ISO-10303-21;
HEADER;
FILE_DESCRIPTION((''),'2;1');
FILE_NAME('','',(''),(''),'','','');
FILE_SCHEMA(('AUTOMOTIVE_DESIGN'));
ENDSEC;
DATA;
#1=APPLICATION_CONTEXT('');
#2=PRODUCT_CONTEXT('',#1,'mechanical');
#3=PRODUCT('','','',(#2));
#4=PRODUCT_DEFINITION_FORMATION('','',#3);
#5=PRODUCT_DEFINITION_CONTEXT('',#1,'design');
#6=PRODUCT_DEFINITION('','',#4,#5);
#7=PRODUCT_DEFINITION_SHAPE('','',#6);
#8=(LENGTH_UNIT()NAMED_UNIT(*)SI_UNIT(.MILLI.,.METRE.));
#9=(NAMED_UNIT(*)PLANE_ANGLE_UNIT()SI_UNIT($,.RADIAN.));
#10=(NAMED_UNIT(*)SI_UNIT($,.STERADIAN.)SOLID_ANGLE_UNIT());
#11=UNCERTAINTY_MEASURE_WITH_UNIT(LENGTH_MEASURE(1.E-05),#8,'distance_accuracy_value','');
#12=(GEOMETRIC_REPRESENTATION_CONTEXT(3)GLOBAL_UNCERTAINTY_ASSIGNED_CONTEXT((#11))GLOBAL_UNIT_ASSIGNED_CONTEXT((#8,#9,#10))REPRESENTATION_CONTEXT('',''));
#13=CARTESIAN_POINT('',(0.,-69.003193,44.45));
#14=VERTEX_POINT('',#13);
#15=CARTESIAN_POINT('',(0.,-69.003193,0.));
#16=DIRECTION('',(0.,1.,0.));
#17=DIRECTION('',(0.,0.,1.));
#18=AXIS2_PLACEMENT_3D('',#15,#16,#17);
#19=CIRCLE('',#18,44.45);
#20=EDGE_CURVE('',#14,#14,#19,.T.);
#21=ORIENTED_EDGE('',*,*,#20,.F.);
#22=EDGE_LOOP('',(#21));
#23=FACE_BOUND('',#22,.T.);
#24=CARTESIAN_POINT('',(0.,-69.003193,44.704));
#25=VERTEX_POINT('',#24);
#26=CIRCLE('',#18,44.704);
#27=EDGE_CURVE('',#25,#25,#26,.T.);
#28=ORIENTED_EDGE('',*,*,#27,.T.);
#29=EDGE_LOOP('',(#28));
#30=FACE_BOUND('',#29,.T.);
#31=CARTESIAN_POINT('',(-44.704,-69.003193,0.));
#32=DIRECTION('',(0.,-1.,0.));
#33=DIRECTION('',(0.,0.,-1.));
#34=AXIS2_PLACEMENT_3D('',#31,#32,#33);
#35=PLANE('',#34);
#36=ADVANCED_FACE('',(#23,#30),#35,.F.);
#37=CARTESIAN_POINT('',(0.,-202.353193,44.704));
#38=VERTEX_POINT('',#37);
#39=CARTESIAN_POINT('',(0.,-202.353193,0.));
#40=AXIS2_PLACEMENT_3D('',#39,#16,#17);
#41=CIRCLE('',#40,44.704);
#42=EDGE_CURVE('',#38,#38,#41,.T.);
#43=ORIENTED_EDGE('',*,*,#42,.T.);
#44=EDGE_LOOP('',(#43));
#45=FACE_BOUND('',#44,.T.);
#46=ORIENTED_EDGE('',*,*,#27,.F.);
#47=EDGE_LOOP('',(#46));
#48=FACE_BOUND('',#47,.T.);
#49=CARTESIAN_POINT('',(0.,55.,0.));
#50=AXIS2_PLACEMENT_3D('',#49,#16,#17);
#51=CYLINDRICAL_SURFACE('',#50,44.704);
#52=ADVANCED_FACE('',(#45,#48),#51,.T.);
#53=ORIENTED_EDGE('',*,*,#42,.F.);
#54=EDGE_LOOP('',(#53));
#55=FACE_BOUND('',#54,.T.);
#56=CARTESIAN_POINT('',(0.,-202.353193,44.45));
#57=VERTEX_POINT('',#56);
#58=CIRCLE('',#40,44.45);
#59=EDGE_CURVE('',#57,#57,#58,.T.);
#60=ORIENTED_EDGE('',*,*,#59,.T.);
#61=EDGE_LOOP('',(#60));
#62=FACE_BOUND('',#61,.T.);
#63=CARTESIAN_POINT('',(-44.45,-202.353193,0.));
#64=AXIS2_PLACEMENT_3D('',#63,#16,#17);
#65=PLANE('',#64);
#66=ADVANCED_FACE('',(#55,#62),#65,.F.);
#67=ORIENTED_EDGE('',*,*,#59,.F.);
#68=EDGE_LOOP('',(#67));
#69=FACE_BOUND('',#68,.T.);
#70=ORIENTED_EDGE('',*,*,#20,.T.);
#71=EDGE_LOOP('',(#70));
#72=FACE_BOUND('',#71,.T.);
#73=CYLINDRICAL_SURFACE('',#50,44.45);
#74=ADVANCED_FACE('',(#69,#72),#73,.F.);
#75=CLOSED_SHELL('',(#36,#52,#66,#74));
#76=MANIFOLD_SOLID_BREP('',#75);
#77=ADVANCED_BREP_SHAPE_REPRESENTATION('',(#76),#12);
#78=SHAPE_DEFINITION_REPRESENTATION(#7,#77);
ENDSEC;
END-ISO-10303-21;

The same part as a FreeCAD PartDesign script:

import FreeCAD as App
import Part
import Sketcher

V = App.Vector
Q = App.Units.Quantity


def add_polygon(sketch, points):
    """Adds a closed chain of lines whose ends are joined by coincident constraints."""
    first, n = sketch.GeometryCount, len(points)
    for a, b in zip(points, points[1:] + points[:1]):
        sketch.addGeometry(Part.LineSegment(App.Vector(*a, 0), App.Vector(*b, 0)), False)
    for i in range(n):
        sketch.addConstraint(Sketcher.Constraint("Coincident", first + i, 2, first + (i + 1) % n, 1))

doc = App.newDocument("Part")
body = doc.addObject("PartDesign::Body", "Body")

# Sketch on XY plane
sketch1 = doc.addObject("Sketcher::SketchObject", "Sketch")
body.addObject(sketch1)
sketch1.AttachmentSupport = (doc.XY_Plane, [""])
sketch1.MapMode = "FlatFace"
add_polygon(sketch1, [(-44.7, -69), (-44.7, -202.35), (-44.45, -202.35), (-44.45, -69)])  # lines 0-3
sketch1.addConstraint(Sketcher.Constraint("Vertical", 0))
sketch1.addConstraint(Sketcher.Constraint("Horizontal", 1))
sketch1.addConstraint(Sketcher.Constraint("Vertical", 2))
sketch1.addConstraint(Sketcher.Constraint("Horizontal", 3))
sketch1.addConstraint(Sketcher.Constraint("DistanceX", 1, 1, 1, 2, Q("0.01 in")))
sketch1.addConstraint(Sketcher.Constraint("DistanceY", 0, 2, 0, 1, Q("5.25 in")))
sketch1.addConstraint(Sketcher.Constraint("DistanceX", 0, 2, -1, 1, Q("1.76 in")))
sketch1.addConstraint(Sketcher.Constraint("DistanceY", 0, 2, -1, 1, Q("202.353193 mm")))
revolution = doc.addObject("PartDesign::Revolution", "Revolution")
body.addObject(revolution)
revolution.Profile = sketch1
revolution.ReferenceAxis = (sketch1, ["V_Axis"])
revolution.Angle = 360

doc.recompute()
